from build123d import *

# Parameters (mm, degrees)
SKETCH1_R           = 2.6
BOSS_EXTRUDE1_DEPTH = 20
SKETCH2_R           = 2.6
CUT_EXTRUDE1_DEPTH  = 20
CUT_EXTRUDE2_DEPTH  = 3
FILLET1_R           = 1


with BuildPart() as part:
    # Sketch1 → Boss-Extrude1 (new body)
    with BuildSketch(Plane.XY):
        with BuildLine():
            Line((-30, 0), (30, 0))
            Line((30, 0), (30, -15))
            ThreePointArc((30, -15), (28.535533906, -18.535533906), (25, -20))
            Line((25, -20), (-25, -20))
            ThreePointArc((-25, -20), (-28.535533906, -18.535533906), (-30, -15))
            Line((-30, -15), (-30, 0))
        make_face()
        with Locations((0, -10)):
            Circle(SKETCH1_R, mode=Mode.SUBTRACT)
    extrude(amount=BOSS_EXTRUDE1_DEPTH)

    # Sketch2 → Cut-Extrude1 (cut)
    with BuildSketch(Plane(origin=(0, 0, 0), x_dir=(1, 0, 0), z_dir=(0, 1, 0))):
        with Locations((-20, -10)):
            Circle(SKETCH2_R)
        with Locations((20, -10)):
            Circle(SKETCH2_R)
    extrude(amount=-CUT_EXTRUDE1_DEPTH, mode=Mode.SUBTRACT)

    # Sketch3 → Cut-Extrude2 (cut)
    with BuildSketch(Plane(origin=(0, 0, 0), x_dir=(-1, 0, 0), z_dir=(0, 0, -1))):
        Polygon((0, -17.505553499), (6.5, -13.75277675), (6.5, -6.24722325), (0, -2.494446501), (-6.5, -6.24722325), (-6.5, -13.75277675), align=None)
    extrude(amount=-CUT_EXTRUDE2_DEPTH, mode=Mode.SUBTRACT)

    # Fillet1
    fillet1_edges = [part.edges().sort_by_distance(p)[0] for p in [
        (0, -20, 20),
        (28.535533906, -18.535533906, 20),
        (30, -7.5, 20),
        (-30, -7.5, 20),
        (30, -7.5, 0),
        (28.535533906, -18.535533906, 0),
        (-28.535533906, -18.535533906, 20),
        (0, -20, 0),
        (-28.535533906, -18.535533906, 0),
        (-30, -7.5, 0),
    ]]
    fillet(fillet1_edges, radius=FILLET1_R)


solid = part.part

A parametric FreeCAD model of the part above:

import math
import FreeCAD as App
import Part
import Sketcher
from FreeCAD import Vector
Q = App.Units.Quantity


def edges_at(feature, points):
    """Names of the edges that pass closest to the given points."""
    edges = feature.Shape.Edges
    near = lambda p: min(range(len(edges)), key=lambda i: edges[i].distToShape(Part.Vertex(*p))[0])
    return sorted({f"Edge{near(p) + 1}" for p in points})


def add_polygon(sketch, points):
    """Adds a closed chain of lines whose ends are joined by coincident constraints."""
    first, n = sketch.GeometryCount, len(points)
    for a, b in zip(points, points[1:] + points[:1]):
        sketch.addGeometry(Part.LineSegment(App.Vector(*a, 0), App.Vector(*b, 0)), False)
    for i in range(n):
        sketch.addConstraint(Sketcher.Constraint("Coincident", first + i, 2, first + (i + 1) % n, 1))

doc = App.newDocument("Part")
body = doc.addObject("PartDesign::Body", "Body")

# Sketch on XY plane
sketch1 = body.newObject("Sketcher::SketchObject", "Sketch")
sketch1.AttachmentSupport = (doc.getObject("XY_Plane"), [""])
sketch1.MapMode = "FlatFace"
sketch1.addGeometry(Part.LineSegment(Vector(30, 0, 0), Vector(-30, 0, 0)), False)
sketch1.addGeometry(Part.LineSegment(Vector(-30, 0, 0), Vector(-30, -15, 0)), False)
sketch1.addGeometry(Part.ArcOfCircle(Part.Circle(Vector(-25, -15, 0), Vector(0, 0, 1), 5), math.radians(180), math.radians(270)), False)
sketch1.addGeometry(Part.LineSegment(Vector(-25, -20, 0), Vector(25, -20, 0)), False)
sketch1.addGeometry(Part.ArcOfCircle(Part.Circle(Vector(25, -15, 0), Vector(0, 0, 1), 5), math.radians(-90), math.radians(0)), False)
sketch1.addGeometry(Part.LineSegment(Vector(30, -15, 0), Vector(30, 0, 0)), False)
sketch1.addGeometry(Part.Circle(Vector(0, -10, 0), Vector(0, 0, 1), 2.6), False)
sketch1.addConstraint(Sketcher.Constraint("Coincident", 0, 2, 1, 1))
sketch1.addConstraint(Sketcher.Constraint("Tangent", 1, 2, 2, 1))
sketch1.addConstraint(Sketcher.Constraint("Tangent", 2, 2, 3, 1))
sketch1.addConstraint(Sketcher.Constraint("Tangent", 3, 2, 4, 1))
sketch1.addConstraint(Sketcher.Constraint("Tangent", 4, 2, 5, 1))
sketch1.addConstraint(Sketcher.Constraint("Coincident", 5, 2, 0, 1))
sketch1.addConstraint(Sketcher.Constraint("Horizontal", 0))
sketch1.addConstraint(Sketcher.Constraint("Vertical", 1))
sketch1.addConstraint(Sketcher.Constraint("Horizontal", 3))
sketch1.addConstraint(Sketcher.Constraint("Vertical", 5))
sketch1.addConstraint(Sketcher.Constraint("Equal", 2, 4))
sketch1.addConstraint(Sketcher.Constraint("Symmetric", 0, 2, 5, 2, -1, 1))
sketch1.addConstraint(Sketcher.Constraint("PointOnObject", 6, 3, -2))
sketch1.addConstraint(Sketcher.Constraint("Radius", 2, Q("5 mm")))
sketch1.addConstraint(Sketcher.Constraint("Diameter", 6, Q("5.2 mm")))
sketch1.addConstraint(Sketcher.Constraint("DistanceX", 0, 2, 0, 1, Q("60 mm")))
sketch1.addConstraint(Sketcher.Constraint("DistanceY", 1, 2, 1, 1, Q("15 mm")))
sketch1.addConstraint(Sketcher.Constraint("DistanceY", 6, 3, -1, 1, Q("10 mm")))
pad1 = body.newObject("PartDesign::Pad", "Pad")
pad1.Profile = sketch1
pad1.Length = 20

# Sketch on XZ plane
sketch2 = body.newObject("Sketcher::SketchObject", "Sketch001")
sketch2.AttachmentSupport = (doc.getObject("XZ_Plane"), [""])
sketch2.MapMode = "FlatFace"
sketch2.addGeometry(Part.Circle(Vector(-20, 10, 0), Vector(0, 0, 1), 2.6), False)
sketch2.addGeometry(Part.Circle(Vector(20, 10, 0), Vector(0, 0, 1), 2.6), False)
sketch2.addConstraint(Sketcher.Constraint("Equal", 0, 1))
sketch2.addConstraint(Sketcher.Constraint("Symmetric", 0, 3, 1, 3, -2))
sketch2.addConstraint(Sketcher.Constraint("Diameter", 0, Q("5.2 mm")))
sketch2.addConstraint(Sketcher.Constraint("DistanceX", 0, 3, -1, 1, Q("20 mm")))
sketch2.addConstraint(Sketcher.Constraint("DistanceY", -1, 1, 0, 3, Q("10 mm")))
pocket1 = body.newObject("PartDesign::Pocket", "Pocket")
pocket1.Profile = sketch2
pocket1.Length = 20
pocket1.Reversed = True

# Sketch on XY plane
sketch3 = body.newObject("Sketcher::SketchObject", "Sketch002")
sketch3.AttachmentSupport = (doc.getObject("XY_Plane"), [""])
sketch3.MapMode = "FlatFace"
add_polygon(sketch3, [(0, -17.505553), (-6.5, -13.752777), (-6.5, -6.247223), (0, -2.494447), (6.5, -6.247223), (6.5, -13.752777)])  # lines 0-5
sketch3.addConstraint(Sketcher.Constraint("Vertical", 1))
sketch3.addConstraint(Sketcher.Constraint("Vertical", 4))
sketch3.addConstraint(Sketcher.Constraint("Symmetric", 1, 2, 3, 2, -2))
sketch3.addConstraint(Sketcher.Constraint("PointOnObject", 2, 2, -2))
sketch3.addConstraint(Sketcher.Constraint("PointOnObject", 5, 2, -2))
sketch3.addConstraint(Sketcher.Constraint("Parallel", 0, 3))
sketch3.addConstraint(Sketcher.Constraint("Parallel", 2, 5))
sketch3.addConstraint(Sketcher.Constraint("Angle", 0, Q("150 deg")))
sketch3.addConstraint(Sketcher.Constraint("DistanceX", 1, 2, 3, 2, Q("13 mm")))
sketch3.addConstraint(Sketcher.Constraint("DistanceY", 1, 1, 1, 2, Q("7.505554 mm")))
sketch3.addConstraint(Sketcher.Constraint("DistanceY", 0, 2, -1, 1, Q("13.752777 mm")))
pocket2 = body.newObject("PartDesign::Pocket", "Pocket001")
pocket2.Profile = sketch3
pocket2.Length = 3
pocket2.Reversed = True
doc.recompute()

fillet = body.newObject("PartDesign::Fillet", "Fillet")
fillet.Base = (pocket2, edges_at(pocket2, [
    (0, -20, 20),
    (28.536, -18.536, 20),
    (30, -7.5, 20),
    (-30, -7.5, 20),
    (30, -7.5, 0),
    (28.536, -18.536, 0),
    (-28.536, -18.536, 20),
    (0, -20, 0),
    (-28.536, -18.536, 0),
    (-30, -7.5, 0),
]))
fillet.Radius = 1

doc.recompute()
